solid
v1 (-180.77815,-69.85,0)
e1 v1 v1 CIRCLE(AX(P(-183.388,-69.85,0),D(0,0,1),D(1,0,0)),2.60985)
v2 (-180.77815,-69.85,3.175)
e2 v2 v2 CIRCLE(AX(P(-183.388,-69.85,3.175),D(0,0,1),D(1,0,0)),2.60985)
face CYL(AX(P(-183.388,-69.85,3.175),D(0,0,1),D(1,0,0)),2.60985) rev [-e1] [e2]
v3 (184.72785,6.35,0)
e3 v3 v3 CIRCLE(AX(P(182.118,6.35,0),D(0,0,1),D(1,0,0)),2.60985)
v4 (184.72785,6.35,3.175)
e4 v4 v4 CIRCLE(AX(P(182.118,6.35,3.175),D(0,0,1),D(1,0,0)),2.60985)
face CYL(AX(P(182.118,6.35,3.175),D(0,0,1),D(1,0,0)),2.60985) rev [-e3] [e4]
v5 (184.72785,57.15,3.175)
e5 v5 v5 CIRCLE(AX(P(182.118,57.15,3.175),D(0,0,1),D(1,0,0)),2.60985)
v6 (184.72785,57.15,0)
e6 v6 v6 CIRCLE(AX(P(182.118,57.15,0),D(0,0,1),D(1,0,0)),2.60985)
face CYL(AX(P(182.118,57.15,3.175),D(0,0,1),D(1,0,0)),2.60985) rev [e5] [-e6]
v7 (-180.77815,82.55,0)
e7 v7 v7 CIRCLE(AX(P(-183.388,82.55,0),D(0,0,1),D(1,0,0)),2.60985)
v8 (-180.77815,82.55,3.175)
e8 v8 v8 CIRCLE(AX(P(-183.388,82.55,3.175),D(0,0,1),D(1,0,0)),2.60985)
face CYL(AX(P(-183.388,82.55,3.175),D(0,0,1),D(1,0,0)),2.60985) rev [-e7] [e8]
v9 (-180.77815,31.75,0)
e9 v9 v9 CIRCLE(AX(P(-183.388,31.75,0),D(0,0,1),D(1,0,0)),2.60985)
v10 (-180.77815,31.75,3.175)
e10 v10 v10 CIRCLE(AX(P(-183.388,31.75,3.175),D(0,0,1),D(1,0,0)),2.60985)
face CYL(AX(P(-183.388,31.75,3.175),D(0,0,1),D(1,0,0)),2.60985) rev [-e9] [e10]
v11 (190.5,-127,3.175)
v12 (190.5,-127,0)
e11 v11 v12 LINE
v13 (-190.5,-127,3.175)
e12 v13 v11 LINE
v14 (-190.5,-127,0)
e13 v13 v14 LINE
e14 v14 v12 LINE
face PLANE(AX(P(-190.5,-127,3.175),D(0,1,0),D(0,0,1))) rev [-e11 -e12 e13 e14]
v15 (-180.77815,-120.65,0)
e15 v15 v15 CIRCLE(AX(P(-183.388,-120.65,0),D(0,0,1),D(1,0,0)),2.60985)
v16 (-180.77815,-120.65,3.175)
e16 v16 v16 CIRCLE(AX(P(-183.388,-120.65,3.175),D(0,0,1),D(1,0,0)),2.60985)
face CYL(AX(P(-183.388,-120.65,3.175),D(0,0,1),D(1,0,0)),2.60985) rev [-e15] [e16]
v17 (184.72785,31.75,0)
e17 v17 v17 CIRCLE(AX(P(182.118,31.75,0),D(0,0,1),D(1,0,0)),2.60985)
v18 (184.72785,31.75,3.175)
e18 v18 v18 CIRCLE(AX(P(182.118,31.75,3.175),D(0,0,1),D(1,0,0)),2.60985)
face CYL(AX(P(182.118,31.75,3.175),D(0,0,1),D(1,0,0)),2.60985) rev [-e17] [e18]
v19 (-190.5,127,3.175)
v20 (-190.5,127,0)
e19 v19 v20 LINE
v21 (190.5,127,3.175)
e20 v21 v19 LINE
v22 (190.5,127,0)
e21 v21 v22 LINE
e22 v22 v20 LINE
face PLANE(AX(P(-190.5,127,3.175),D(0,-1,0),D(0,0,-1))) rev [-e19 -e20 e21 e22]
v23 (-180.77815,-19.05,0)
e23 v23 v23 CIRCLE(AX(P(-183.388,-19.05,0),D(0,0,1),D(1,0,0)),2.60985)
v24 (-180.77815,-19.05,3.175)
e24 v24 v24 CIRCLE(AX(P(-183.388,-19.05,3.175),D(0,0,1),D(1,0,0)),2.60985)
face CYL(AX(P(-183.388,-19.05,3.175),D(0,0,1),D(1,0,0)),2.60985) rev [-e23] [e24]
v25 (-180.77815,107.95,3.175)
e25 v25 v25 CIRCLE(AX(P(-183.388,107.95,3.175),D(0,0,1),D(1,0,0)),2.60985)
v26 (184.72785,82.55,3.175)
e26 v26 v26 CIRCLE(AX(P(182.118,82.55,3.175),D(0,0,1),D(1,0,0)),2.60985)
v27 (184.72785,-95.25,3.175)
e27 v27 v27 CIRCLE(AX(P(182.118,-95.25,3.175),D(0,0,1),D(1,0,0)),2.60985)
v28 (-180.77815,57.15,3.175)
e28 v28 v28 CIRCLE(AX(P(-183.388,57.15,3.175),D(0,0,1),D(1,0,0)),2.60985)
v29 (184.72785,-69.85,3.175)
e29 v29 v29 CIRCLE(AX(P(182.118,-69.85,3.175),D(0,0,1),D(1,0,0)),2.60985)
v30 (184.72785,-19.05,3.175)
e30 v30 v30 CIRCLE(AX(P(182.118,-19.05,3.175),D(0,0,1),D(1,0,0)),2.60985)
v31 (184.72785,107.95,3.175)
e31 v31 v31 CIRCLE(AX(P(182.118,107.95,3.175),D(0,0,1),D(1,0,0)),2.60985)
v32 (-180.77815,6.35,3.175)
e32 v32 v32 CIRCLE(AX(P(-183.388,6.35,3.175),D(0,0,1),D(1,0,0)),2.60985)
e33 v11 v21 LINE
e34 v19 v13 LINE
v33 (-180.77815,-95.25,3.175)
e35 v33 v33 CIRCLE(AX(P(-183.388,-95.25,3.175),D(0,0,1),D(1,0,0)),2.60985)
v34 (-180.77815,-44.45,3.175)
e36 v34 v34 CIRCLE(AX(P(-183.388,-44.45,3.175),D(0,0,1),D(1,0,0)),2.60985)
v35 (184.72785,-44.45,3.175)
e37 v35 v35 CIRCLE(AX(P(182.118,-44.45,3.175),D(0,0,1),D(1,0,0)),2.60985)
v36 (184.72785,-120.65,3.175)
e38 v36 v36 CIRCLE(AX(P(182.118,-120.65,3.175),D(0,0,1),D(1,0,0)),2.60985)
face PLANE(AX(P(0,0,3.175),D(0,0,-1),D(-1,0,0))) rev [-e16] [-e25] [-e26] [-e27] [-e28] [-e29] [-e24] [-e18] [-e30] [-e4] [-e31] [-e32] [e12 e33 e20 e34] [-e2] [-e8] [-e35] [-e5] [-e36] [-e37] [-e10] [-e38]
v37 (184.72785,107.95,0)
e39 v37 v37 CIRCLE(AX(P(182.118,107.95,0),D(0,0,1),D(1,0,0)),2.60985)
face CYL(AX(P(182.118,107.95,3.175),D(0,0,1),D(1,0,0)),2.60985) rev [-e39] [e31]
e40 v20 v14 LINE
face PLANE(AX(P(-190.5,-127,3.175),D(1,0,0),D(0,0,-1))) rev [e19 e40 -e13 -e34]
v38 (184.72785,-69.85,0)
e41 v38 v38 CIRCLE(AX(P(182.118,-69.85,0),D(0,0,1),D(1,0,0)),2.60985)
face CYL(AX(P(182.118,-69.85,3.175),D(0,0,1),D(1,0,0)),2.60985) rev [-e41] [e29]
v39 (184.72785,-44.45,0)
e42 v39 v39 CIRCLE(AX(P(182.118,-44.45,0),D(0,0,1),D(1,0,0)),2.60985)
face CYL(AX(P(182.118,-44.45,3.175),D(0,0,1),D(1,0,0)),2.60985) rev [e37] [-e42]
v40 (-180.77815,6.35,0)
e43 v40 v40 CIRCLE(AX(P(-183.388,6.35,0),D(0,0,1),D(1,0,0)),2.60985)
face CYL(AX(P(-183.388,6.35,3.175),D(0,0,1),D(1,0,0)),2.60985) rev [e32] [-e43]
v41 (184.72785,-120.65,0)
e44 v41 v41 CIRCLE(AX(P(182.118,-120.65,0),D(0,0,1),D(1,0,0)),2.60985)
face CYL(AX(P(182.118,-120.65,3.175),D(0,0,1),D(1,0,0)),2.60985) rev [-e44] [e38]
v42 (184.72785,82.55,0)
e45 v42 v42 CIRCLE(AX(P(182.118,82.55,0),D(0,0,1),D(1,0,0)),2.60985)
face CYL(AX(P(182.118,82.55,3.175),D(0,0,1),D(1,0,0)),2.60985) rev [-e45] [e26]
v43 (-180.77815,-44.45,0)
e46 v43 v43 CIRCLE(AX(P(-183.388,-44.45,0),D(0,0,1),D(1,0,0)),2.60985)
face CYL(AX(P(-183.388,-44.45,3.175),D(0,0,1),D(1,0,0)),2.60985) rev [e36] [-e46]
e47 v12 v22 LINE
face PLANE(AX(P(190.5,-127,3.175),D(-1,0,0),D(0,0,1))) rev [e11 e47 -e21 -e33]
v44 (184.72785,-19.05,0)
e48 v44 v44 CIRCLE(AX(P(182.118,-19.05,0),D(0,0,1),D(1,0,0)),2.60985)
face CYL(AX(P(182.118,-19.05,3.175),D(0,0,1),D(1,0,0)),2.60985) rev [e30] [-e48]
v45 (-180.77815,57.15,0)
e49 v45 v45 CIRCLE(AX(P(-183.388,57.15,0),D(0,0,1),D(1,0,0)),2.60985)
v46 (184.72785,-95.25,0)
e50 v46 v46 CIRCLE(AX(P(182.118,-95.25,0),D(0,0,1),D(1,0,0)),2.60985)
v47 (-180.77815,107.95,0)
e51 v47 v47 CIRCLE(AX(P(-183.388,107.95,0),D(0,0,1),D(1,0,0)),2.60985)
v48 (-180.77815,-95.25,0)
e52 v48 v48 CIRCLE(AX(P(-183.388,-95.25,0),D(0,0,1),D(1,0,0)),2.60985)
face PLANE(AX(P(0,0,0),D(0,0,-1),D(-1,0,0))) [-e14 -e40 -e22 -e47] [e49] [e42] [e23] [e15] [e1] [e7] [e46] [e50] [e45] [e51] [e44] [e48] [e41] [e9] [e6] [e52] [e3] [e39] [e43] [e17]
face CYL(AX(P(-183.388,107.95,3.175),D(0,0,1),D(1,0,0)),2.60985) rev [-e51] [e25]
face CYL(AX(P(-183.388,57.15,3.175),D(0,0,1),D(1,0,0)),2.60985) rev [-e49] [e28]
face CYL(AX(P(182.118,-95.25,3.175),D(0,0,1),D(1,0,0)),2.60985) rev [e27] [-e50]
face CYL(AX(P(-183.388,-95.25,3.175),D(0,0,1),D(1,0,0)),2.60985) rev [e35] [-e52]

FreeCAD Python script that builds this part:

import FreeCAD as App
import Part
import Sketcher
from FreeCAD import Vector
Q = App.Units.Quantity

doc = App.newDocument("Part")
params = doc.addObject("Spreadsheet::Sheet", "Params")
for row, (alias, value) in enumerate([
    ("sketch1_width", "15 in"),
    ("sketch1_height", "10 in"),
    ("pad1_length", "0.125 in"),
    ("hole_diameter", "0.2055 in"),
], start=1):
    params.set(f"A{row}", alias)
    params.set(f"B{row}", "=" + value)
    params.setAlias(f"B{row}", alias)

body = doc.addObject("PartDesign::Body", "Body")

sketch1 = body.newObject("Sketcher::SketchObject", "Sketch")
sketch1.AttachmentSupport = (doc.getObject("XY_Plane"), [""])
sketch1.MapMode = "FlatFace"
sketch1.addGeometry([
    Part.LineSegment(Vector(-190.5, 127, 0), Vector(-190.5, -127, 0)),
    Part.LineSegment(Vector(-190.5, -127, 0), Vector(190.5, -127, 0)),
    Part.LineSegment(Vector(190.5, -127, 0), Vector(190.5, 127, 0)),
    Part.LineSegment(Vector(190.5, 127, 0), Vector(-190.5, 127, 0)),
], False)
sketch1.addConstraint([
    Sketcher.Constraint("Coincident", 0, 2, 1, 1),
    Sketcher.Constraint("Coincident", 1, 2, 2, 1),
    Sketcher.Constraint("Coincident", 2, 2, 3, 1),
    Sketcher.Constraint("Coincident", 3, 2, 0, 1),
    Sketcher.Constraint("Vertical", 0),
    Sketcher.Constraint("Horizontal", 1),
    Sketcher.Constraint("Vertical", 2),
    Sketcher.Constraint("Horizontal", 3),
    Sketcher.Constraint("Symmetric", 0, 2, 2, 2, -1, 1),
    Sketcher.Constraint("DistanceX", 1, 1, 1, 2, Q("15 in")),
    Sketcher.Constraint("DistanceY", 0, 2, 0, 1, Q("10 in")),
])
sketch1.setExpression("Constraints[9]", "Params.sketch1_width")
sketch1.setExpression("Constraints[10]", "Params.sketch1_height")
pad1 = body.newObject("PartDesign::Pad", "Pad")
pad1.Profile = sketch1
pad1.setExpression("Length", "Params.pad1_length")

sketch2 = body.newObject("Sketcher::SketchObject", "Sketch001")
sketch2.AttachmentSupport = (doc.getObject("XY_Plane"), [""])
sketch2.MapMode = "FlatFace"
sketch2.AttachmentOffset = App.Placement(Vector(0, 0, 0.125 * 25.4), App.Rotation())
sketch2.addGeometry([
    Part.Circle(Vector(-183.388, 107.95, 0), Vector(0, 0, 1), 2.60985),
    Part.Circle(Vector(-183.388, 82.55, 0), Vector(0, 0, 1), 2.60985),
    Part.Circle(Vector(-183.388, 57.15, 0), Vector(0, 0, 1), 2.60985),
    Part.Circle(Vector(-183.388, 31.75, 0), Vector(0, 0, 1), 2.60985),
    Part.Circle(Vector(-183.388, 6.35, 0), Vector(0, 0, 1), 2.60985),
    Part.Circle(Vector(-183.388, -19.05, 0), Vector(0, 0, 1), 2.60985),
    Part.Circle(Vector(-183.388, -44.45, 0), Vector(0, 0, 1), 2.60985),
    Part.Circle(Vector(-183.388, -69.85, 0), Vector(0, 0, 1), 2.60985),
    Part.Circle(Vector(-183.388, -120.65, 0), Vector(0, 0, 1), 2.60985),
    Part.Circle(Vector(-183.388, -95.25, 0), Vector(0, 0, 1), 2.60985),
    Part.Circle(Vector(182.118, -120.65, 0), Vector(0, 0, 1), 2.60985),
    Part.Circle(Vector(182.118, -95.25, 0), Vector(0, 0, 1), 2.60985),
    Part.Circle(Vector(182.118, -69.85, 0), Vector(0, 0, 1), 2.60985),
    Part.Circle(Vector(182.118, -44.45, 0), Vector(0, 0, 1), 2.60985),
    Part.Circle(Vector(182.118, -19.05, 0), Vector(0, 0, 1), 2.60985),
    Part.Circle(Vector(182.118, 6.35, 0), Vector(0, 0, 1), 2.60985),
    Part.Circle(Vector(182.118, 31.75, 0), Vector(0, 0, 1), 2.60985),
    Part.Circle(Vector(182.118, 57.15, 0), Vector(0, 0, 1), 2.60985),
    Part.Circle(Vector(182.118, 82.55, 0), Vector(0, 0, 1), 2.60985),
    Part.Circle(Vector(182.118, 107.95, 0), Vector(0, 0, 1), 2.60985),
], False)
sketch2.addConstraint([
    Sketcher.Constraint("Equal", 0, 1),
    Sketcher.Constraint("Equal", 1, 2),
    Sketcher.Constraint("Equal", 2, 3),
    Sketcher.Constraint("Equal", 3, 4),
    Sketcher.Constraint("Equal", 4, 5),
    Sketcher.Constraint("Equal", 5, 6),
    Sketcher.Constraint("Equal", 6, 7),
    Sketcher.Constraint("Equal", 7, 8),
    Sketcher.Constraint("Equal", 8, 9),
    Sketcher.Constraint("Equal", 9, 10),
    Sketcher.Constraint("Equal", 10, 11),
    Sketcher.Constraint("Equal", 11, 12),
    Sketcher.Constraint("Equal", 12, 13),
    Sketcher.Constraint("Equal", 13, 14),
    Sketcher.Constraint("Equal", 14, 15),
    Sketcher.Constraint("Equal", 15, 16),
    Sketcher.Constraint("Equal", 16, 17),
    Sketcher.Constraint("Equal", 17, 18),
    Sketcher.Constraint("Equal", 18, 19),
    Sketcher.Constraint("Horizontal", 8, 3, 10, 3),
    Sketcher.Constraint("Horizontal", 9, 3, 11, 3),
    Sketcher.Constraint("Horizontal", 7, 3, 12, 3),
    Sketcher.Constraint("Horizontal", 6, 3, 13, 3),
    Sketcher.Constraint("Horizontal", 5, 3, 14, 3),
    Sketcher.Constraint("Horizontal", 4, 3, 15, 3),
    Sketcher.Constraint("Horizontal", 3, 3, 16, 3),
    Sketcher.Constraint("Horizontal", 2, 3, 17, 3),
    Sketcher.Constraint("Horizontal", 1, 3, 18, 3),
    Sketcher.Constraint("Horizontal", 0, 3, 19, 3),
    Sketcher.Constraint("Vertical", 0, 3, 1, 3),
    Sketcher.Constraint("Vertical", 1, 3, 2, 3),
    Sketcher.Constraint("Vertical", 2, 3, 3, 3),
    Sketcher.Constraint("Vertical", 3, 3, 4, 3),
    Sketcher.Constraint("Vertical", 4, 3, 5, 3),
    Sketcher.Constraint("Vertical", 5, 3, 6, 3),
    Sketcher.Constraint("Vertical", 6, 3, 7, 3),
    Sketcher.Constraint("Vertical", 7, 3, 8, 3),
    Sketcher.Constraint("Vertical", 8, 3, 9, 3),
    Sketcher.Constraint("Vertical", 10, 3, 11, 3),
    Sketcher.Constraint("Vertical", 11, 3, 12, 3),
    Sketcher.Constraint("Vertical", 12, 3, 13, 3),
    Sketcher.Constraint("Vertical", 13, 3, 14, 3),
    Sketcher.Constraint("Vertical", 14, 3, 15, 3),
    Sketcher.Constraint("Vertical", 15, 3, 16, 3),
    Sketcher.Constraint("Vertical", 16, 3, 17, 3),
    Sketcher.Constraint("Vertical", 17, 3, 18, 3),
    Sketcher.Constraint("Vertical", 18, 3, 19, 3),
    Sketcher.Constraint("DistanceY", 1, 3, 0, 3, Q("1 in")),
    Sketcher.Constraint("DistanceY", 2, 3, 1, 3, Q("1 in")),
    Sketcher.Constraint("DistanceY", 3, 3, 2, 3, Q("1 in")),
    Sketcher.Constraint("DistanceY", 4, 3, 3, 3, Q("1 in")),
    Sketcher.Constraint("DistanceY", 5, 3, 4, 3, Q("1 in")),
    Sketcher.Constraint("DistanceY", 6, 3, 5, 3, Q("1 in")),
    Sketcher.Constraint("DistanceY", 7, 3, 6, 3, Q("1 in")),
    Sketcher.Constraint("DistanceY", 8, 3, 7, 3, Q("2 in")),
    Sketcher.Constraint("DistanceY", 9, 3, 7, 3, Q("1 in")),
    Sketcher.Constraint("Diameter", 0, Q("0.2055 in")),
    Sketcher.Constraint("DistanceX", 0, 3, -1, 1, Q("7.22 in")),
    Sketcher.Constraint("DistanceY", -1, 1, 0, 3, Q("4.25 in")),
    Sketcher.Constraint("DistanceX", -1, 1, 10, 3, Q("7.17 in")),
])
doc.recompute()
hole = body.newObject("PartDesign::Hole", "Hole")
hole.Profile = sketch2
hole.ThreadType = "None"
hole.setExpression("Diameter", "Params.hole_diameter")
hole.DepthType = "ThroughAll"

doc.recompute()
